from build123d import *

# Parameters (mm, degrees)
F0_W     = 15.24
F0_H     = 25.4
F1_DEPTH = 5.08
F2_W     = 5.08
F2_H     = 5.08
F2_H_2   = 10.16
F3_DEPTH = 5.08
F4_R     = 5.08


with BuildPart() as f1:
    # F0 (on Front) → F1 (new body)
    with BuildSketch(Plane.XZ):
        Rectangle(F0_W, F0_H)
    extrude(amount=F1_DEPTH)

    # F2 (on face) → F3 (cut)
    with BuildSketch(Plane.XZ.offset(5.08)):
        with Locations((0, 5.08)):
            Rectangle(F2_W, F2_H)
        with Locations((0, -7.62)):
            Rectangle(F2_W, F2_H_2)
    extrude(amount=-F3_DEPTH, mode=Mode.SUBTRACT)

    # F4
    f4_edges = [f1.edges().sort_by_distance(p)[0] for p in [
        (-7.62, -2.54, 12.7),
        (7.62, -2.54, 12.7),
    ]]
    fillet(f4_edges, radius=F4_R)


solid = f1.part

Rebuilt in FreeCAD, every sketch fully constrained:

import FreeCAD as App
import Part
import Sketcher
Q = App.Units.Quantity


def edges_at(feature, points):
    """Names of the edges that pass closest to the given points."""
    edges = feature.Shape.Edges
    near = lambda p: min(range(len(edges)), key=lambda i: edges[i].distToShape(Part.Vertex(*p))[0])
    return sorted({f"Edge{near(p) + 1}" for p in points})


def add_polygon(sketch, points):
    """Adds a closed chain of lines whose ends are joined by coincident constraints."""
    first, n = sketch.GeometryCount, len(points)
    for a, b in zip(points, points[1:] + points[:1]):
        sketch.addGeometry(Part.LineSegment(App.Vector(*a, 0), App.Vector(*b, 0)), False)
    for i in range(n):
        sketch.addConstraint(Sketcher.Constraint("Coincident", first + i, 2, first + (i + 1) % n, 1))

doc = App.newDocument("Part")
body = doc.addObject("PartDesign::Body", "Body")

sketch1 = body.newObject("Sketcher::SketchObject", "Sketch")
sketch1.AttachmentSupport = (doc.getObject("XZ_Plane"), [""])
sketch1.MapMode = "FlatFace"
add_polygon(sketch1, [(-8, 13), (-8, -13), (8, -13), (8, 13)])
sketch1.addConstraint(Sketcher.Constraint("Vertical", 0))
sketch1.addConstraint(Sketcher.Constraint("Horizontal", 1))
sketch1.addConstraint(Sketcher.Constraint("Vertical", 2))
sketch1.addConstraint(Sketcher.Constraint("Horizontal", 3))
sketch1.addConstraint(Sketcher.Constraint("Symmetric", 0, 2, 2, 2, -1, 1))
sketch1.addConstraint(Sketcher.Constraint("DistanceY", 0, 2, 0, 1, Q("1 in")))
sketch1.addConstraint(Sketcher.Constraint("DistanceX", 1, 1, 1, 2, Q("0.6 in")))
pad1 = body.newObject("PartDesign::Pad", "Pad")
pad1.Profile = sketch1
pad1.Length = Q("0.2 in")

sketch2 = body.newObject("Sketcher::SketchObject", "Sketch001")
sketch2.AttachmentSupport = (doc.getObject("XZ_Plane"), [""])
sketch2.MapMode = "FlatFace"
sketch2.AttachmentOffset = App.Placement(App.Vector(0, 0, 0.2 * 25.4), App.Rotation())
add_polygon(sketch2, [(-3, 8), (-3, 3), (3, 3), (3, 8)])
add_polygon(sketch2, [(-3, -3), (-3, -13), (3, -13), (3, -3)])
sketch2.addConstraint(Sketcher.Constraint("Vertical", 0))
sketch2.addConstraint(Sketcher.Constraint("Horizontal", 1))
sketch2.addConstraint(Sketcher.Constraint("Vertical", 2))
sketch2.addConstraint(Sketcher.Constraint("Horizontal", 3))
sketch2.addConstraint(Sketcher.Constraint("Vertical", 4))
sketch2.addConstraint(Sketcher.Constraint("Horizontal", 5))
sketch2.addConstraint(Sketcher.Constraint("Vertical", 6))
sketch2.addConstraint(Sketcher.Constraint("Horizontal", 7))
sketch2.addConstraint(Sketcher.Constraint("Symmetric", 0, 2, 6, 2, -1, 1))
sketch2.addConstraint(Sketcher.Constraint("Vertical", 3, 2, 4, 2))
sketch2.addConstraint(Sketcher.Constraint("Vertical", 2, 2, 5, 2))
sketch2.addConstraint(Sketcher.Constraint("Equal", 7, 0))
sketch2.addConstraint(Sketcher.Constraint("DistanceX", 1, 1, 1, 2, Q("0.2 in")))
sketch2.addConstraint(Sketcher.Constraint("DistanceY", 4, 2, 4, 1, Q("0.4 in")))
sketch2.addConstraint(Sketcher.Constraint("DistanceY", -1, 1, 0, 2, Q("0.1 in")))
pocket1 = body.newObject("PartDesign::Pocket", "Pocket")
pocket1.Profile = sketch2
pocket1.Length = Q("0.2 in")
doc.recompute()

fillet = body.newObject("PartDesign::Fillet", "Fillet")
fillet.Base = (pocket1, edges_at(pocket1, [(-7.62, -2.54, 12.7), (7.62, -2.54, 12.7)]))
fillet.Radius = Q("0.2 in")

doc.recompute()
